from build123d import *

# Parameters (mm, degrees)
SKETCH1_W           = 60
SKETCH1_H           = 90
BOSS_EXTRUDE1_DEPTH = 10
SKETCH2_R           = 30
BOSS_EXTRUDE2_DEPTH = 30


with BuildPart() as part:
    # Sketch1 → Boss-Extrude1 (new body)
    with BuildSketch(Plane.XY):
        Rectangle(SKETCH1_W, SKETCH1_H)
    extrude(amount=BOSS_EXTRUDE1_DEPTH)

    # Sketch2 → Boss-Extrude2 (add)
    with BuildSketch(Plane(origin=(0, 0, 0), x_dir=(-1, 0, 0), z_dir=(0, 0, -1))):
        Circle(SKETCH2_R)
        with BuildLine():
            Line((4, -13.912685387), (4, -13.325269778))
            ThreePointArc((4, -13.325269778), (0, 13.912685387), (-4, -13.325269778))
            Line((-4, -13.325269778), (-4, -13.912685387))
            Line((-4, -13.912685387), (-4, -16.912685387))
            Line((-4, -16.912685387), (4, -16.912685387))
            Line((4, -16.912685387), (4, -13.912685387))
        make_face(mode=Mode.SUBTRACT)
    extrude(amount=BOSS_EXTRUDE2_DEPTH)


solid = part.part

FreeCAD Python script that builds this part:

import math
import FreeCAD as App
import Part
import Sketcher
from FreeCAD import Vector


def add_polygon(sketch, points):
    """Adds a closed chain of lines whose ends are joined by coincident constraints."""
    first, n = sketch.GeometryCount, len(points)
    for a, b in zip(points, points[1:] + points[:1]):
        sketch.addGeometry(Part.LineSegment(App.Vector(*a, 0), App.Vector(*b, 0)), False)
    for i in range(n):
        sketch.addConstraint(Sketcher.Constraint("Coincident", first + i, 2, first + (i + 1) % n, 1))

doc = App.newDocument("Part")
params = doc.addObject("Spreadsheet::Sheet", "Params")
for row, (alias, value) in enumerate([
    ("sketch1_width", "60 mm"),
    ("sketch1_height", "90 mm"),
    ("pad1_length", "10 mm"),
    ("sketch2_diameter", "60 mm"),
    ("sketch2_width", "8 mm"),
    ("pad2_length", "30 mm"),
], start=1):
    params.set(f"A{row}", alias)
    params.set(f"B{row}", "=" + value)
    params.setAlias(f"B{row}", alias)

body = doc.addObject("PartDesign::Body", "Body")

# Sketch on XY plane
sketch1 = doc.addObject("Sketcher::SketchObject", "Sketch")
body.addObject(sketch1)
sketch1.AttachmentSupport = (doc.XY_Plane, [""])
sketch1.MapMode = "FlatFace"
add_polygon(sketch1, [(-30, 45), (-30, -45), (30, -45), (30, 45)])  # lines 0-3
sketch1.addConstraint([
    Sketcher.Constraint("Vertical", 0),
    Sketcher.Constraint("Horizontal", 1),
    Sketcher.Constraint("Vertical", 2),
    Sketcher.Constraint("Horizontal", 3),
    Sketcher.Constraint("Symmetric", 0, 2, 2, 2, -1, 1),
    Sketcher.Constraint("DistanceX", 1, 1, 1, 2, 60.0),
    Sketcher.Constraint("DistanceY", 0, 2, 0, 1, 90.0),
])
sketch1.setExpression("Constraints[9]", "Params.sketch1_width")
sketch1.setExpression("Constraints[10]", "Params.sketch1_height")
pad1 = doc.addObject("PartDesign::Pad", "Pad")
body.addObject(pad1)
pad1.Profile = sketch1
pad1.setExpression("Length", "Params.pad1_length")

# Sketch on XY plane
sketch2 = doc.addObject("Sketcher::SketchObject", "Sketch001")
body.addObject(sketch2)
sketch2.AttachmentSupport = (doc.XY_Plane, [""])
sketch2.MapMode = "FlatFace"
sketch2.addGeometry([
    Part.Circle(Vector(0, 0, 0), Vector(0, 0, 1), 30),  # 0
    Part.ArcOfCircle(Part.Circle(Vector(0, 0, 0), Vector(0, 0, 1), 13.912685), math.radians(-73.291214), math.radians(253.291214)),  # 1
    Part.LineSegment(Vector(-4, -13.32527, 0), Vector(-4, -16.912685, 0)),  # 2
    Part.LineSegment(Vector(-4, -16.912685, 0), Vector(4, -16.912685, 0)),  # 3
    Part.LineSegment(Vector(4, -16.912685, 0), Vector(4, -13.32527, 0)),  # 4
], False)
sketch2.addConstraint([
    Sketcher.Constraint("Coincident", 1, 2, 2, 1),
    Sketcher.Constraint("Coincident", 2, 2, 3, 1),
    Sketcher.Constraint("Coincident", 3, 2, 4, 1),
    Sketcher.Constraint("Coincident", 4, 2, 1, 1),
    Sketcher.Constraint("Vertical", 2),
    Sketcher.Constraint("Horizontal", 3),
    Sketcher.Constraint("Vertical", 4),
    Sketcher.Constraint("Coincident", 0, 3, -1, 1),
    Sketcher.Constraint("Coincident", 1, 3, -1, 1),
    Sketcher.Constraint("Horizontal", 1, 2, 4, 2),
    Sketcher.Constraint("Diameter", 0, 60.0),
    Sketcher.Constraint("DistanceX", 3, 1, 3, 2, 8.0),
    Sketcher.Constraint("Radius", 1, 13.912685),
    Sketcher.Constraint("DistanceY", 2, 2, 2, 1, 3.587416),
])
sketch2.setExpression("Constraints[10]", "Params.sketch2_diameter")
sketch2.setExpression("Constraints[11]", "Params.sketch2_width")
pad2 = doc.addObject("PartDesign::Pad", "Pad001")
body.addObject(pad2)
pad2.Profile = sketch2
pad2.setExpression("Length", "Params.pad2_length")
pad2.Reversed = True

doc.recompute()
